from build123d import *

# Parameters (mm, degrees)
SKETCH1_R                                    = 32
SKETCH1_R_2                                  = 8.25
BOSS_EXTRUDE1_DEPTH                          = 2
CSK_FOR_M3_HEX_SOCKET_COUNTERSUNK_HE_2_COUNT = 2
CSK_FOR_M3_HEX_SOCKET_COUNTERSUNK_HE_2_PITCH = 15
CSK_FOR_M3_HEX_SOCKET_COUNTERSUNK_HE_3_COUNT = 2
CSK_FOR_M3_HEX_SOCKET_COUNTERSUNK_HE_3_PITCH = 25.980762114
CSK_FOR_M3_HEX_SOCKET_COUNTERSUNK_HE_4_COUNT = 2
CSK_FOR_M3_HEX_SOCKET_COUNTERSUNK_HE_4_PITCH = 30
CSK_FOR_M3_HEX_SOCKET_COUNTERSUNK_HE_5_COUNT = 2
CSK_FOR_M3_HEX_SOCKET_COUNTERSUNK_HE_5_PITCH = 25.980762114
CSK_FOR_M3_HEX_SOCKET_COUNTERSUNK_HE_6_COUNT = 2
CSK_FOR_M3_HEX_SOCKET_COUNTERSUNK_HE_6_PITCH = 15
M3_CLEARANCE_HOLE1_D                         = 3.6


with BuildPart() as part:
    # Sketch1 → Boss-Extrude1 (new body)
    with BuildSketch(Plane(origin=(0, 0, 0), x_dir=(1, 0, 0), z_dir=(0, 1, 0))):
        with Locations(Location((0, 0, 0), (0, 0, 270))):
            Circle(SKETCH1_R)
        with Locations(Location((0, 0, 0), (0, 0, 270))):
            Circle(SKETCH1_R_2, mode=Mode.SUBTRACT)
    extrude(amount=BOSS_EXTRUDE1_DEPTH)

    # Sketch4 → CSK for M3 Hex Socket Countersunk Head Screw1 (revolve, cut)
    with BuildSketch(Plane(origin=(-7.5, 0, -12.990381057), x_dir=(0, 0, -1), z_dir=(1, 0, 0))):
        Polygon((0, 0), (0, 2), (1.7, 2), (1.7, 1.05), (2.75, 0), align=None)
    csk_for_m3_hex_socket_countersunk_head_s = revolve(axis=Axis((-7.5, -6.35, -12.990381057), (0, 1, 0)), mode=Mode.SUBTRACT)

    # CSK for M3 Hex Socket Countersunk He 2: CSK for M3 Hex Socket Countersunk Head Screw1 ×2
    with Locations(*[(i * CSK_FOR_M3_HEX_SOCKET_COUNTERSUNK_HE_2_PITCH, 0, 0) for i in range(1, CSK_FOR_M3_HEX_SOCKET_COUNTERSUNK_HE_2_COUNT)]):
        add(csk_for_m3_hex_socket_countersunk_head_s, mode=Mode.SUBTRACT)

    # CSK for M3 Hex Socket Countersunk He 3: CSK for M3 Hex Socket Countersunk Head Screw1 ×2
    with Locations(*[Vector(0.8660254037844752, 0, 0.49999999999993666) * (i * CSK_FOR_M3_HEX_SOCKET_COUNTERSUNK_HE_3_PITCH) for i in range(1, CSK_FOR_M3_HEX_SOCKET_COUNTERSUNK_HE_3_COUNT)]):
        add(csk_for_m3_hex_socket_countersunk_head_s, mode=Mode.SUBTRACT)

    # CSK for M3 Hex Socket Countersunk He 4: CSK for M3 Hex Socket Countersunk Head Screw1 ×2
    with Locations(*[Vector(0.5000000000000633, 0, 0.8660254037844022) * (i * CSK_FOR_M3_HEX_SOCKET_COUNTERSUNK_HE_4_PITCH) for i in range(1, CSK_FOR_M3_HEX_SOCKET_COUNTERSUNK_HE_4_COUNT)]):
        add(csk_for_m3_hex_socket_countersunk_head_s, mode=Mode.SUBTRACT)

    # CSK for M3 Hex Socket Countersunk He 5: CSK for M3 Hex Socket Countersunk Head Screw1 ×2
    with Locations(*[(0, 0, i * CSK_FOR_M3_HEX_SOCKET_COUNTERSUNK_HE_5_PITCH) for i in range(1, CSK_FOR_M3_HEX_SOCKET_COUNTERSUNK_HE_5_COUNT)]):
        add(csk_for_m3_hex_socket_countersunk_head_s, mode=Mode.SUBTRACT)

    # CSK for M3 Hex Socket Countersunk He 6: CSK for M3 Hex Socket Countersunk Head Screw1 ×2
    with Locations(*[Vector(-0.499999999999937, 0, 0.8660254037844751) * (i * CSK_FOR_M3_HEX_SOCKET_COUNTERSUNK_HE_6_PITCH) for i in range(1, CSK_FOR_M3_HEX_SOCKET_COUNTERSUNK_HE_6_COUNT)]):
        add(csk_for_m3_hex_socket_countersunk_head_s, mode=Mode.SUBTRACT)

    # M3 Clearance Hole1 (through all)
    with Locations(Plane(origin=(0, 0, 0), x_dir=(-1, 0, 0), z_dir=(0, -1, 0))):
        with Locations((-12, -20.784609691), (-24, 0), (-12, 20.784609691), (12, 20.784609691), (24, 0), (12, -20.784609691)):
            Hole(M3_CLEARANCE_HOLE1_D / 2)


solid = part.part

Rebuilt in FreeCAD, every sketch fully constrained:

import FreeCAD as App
import Part
import Sketcher

V = App.Vector
Q = App.Units.Quantity

doc = App.newDocument("Part")
params = doc.addObject("Spreadsheet::Sheet", "Params")
for row, (alias, value) in enumerate([
    ("sketch1_diameter", "64 mm"),
    ("sketch1_diameter2", "16.5 mm"),
    ("pad1_length", "2 mm"),
    ("sketch2_width", "2 mm"),
    ("sketch2_height", "1.7 mm"),
    ("sketch2_width2", "0.95 mm"),
    ("groove_angle", "360 deg"),
    ("linearpattern_pitch", "15 mm"),
    ("linearpattern2_pitch", "25.980762 mm"),
    ("linearpattern3_pitch", "30 mm"),
    ("linearpattern4_pitch", "25.980762 mm"),
    ("linearpattern5_pitch", "15 mm"),
    ("sketch3_diameter", "3.6 mm"),
    ("hole_diameter", "3.6 mm"),
], start=1):
    params.set(f"A{row}", alias)
    params.set(f"B{row}", "=" + value)
    params.setAlias(f"B{row}", alias)

body = doc.addObject("PartDesign::Body", "Body")

sketch1 = body.newObject("Sketcher::SketchObject", "Sketch")
sketch1.AttachmentSupport = (doc.getObject("XZ_Plane"), [""])
sketch1.MapMode = "FlatFace"
sketch1.addGeometry(Part.Circle(V(0, 0, 0), V(0, 0, 1), 32), False)
sketch1.addGeometry(Part.Circle(V(0, 0, 0), V(0, 0, 1), 8), False)
sketch1.addConstraint(Sketcher.Constraint("Coincident", 0, 3, -1, 1))
sketch1.addConstraint(Sketcher.Constraint("Coincident", 1, 3, -1, 1))
sketch1.addConstraint(Sketcher.Constraint("Diameter", 0, 64.0))
sketch1.addConstraint(Sketcher.Constraint("Diameter", 1, 16.5))
sketch1.setExpression("Constraints[2]", "Params.sketch1_diameter")
sketch1.setExpression("Constraints[3]", "Params.sketch1_diameter2")
pad1 = body.newObject("PartDesign::Pad", "Pad")
pad1.Profile = sketch1
pad1.setExpression("Length", "Params.pad1_length")
pad1.Reversed = True

sketch2 = body.newObject("Sketcher::SketchObject", "Sketch001")
sketch2.AttachmentSupport = (doc.getObject("YZ_Plane"), [""])
sketch2.MapMode = "FlatFace"
sketch2.AttachmentOffset = App.Placement(V(0, 0, -7.5), App.Rotation())
sketch2.addGeometry(Part.LineSegment(V(2, -13, 0), V(0, -13, 0)), False)
sketch2.addGeometry(Part.LineSegment(V(0, -13, 0), V(0, -15.7, 0)), False)
sketch2.addGeometry(Part.LineSegment(V(0, -15.7, 0), V(1.1, -14.7, 0)), False)
sketch2.addGeometry(Part.LineSegment(V(1.1, -14.7, 0), V(2, -14.7, 0)), False)
sketch2.addGeometry(Part.LineSegment(V(2, -14.7, 0), V(2, -13, 0)), False)
sketch2.addGeometry(Part.LineSegment(V(0, -13, 0), V(2, -13, 0)), True)
sketch2.addConstraint(Sketcher.Constraint("Coincident", 0, 2, 1, 1))
sketch2.addConstraint(Sketcher.Constraint("Coincident", 1, 2, 2, 1))
sketch2.addConstraint(Sketcher.Constraint("Coincident", 2, 2, 3, 1))
sketch2.addConstraint(Sketcher.Constraint("Coincident", 3, 2, 4, 1))
sketch2.addConstraint(Sketcher.Constraint("Coincident", 4, 2, 0, 1))
sketch2.addConstraint(Sketcher.Constraint("Horizontal", 0))
sketch2.addConstraint(Sketcher.Constraint("Vertical", 1))
sketch2.addConstraint(Sketcher.Constraint("Horizontal", 3))
sketch2.addConstraint(Sketcher.Constraint("Vertical", 4))
sketch2.addConstraint(Sketcher.Constraint("Horizontal", 5))
sketch2.addConstraint(Sketcher.Constraint("Coincident", 5, 1, 0, 2))
sketch2.addConstraint(Sketcher.Constraint("PointOnObject", 0, 2, -2))
sketch2.addConstraint(Sketcher.Constraint("Vertical", 3, 2, 5, 2))
sketch2.addConstraint(Sketcher.Constraint("DistanceX", 0, 2, 0, 1, 2.0))
sketch2.addConstraint(Sketcher.Constraint("Angle", 2, Q("45 deg")))
sketch2.addConstraint(Sketcher.Constraint("DistanceY", 4, 1, 4, 2, 1.7))
sketch2.addConstraint(Sketcher.Constraint("DistanceX", 3, 1, 3, 2, 0.95))
sketch2.addConstraint(Sketcher.Constraint("DistanceY", 0, 2, -1, 1, 12.990381))
sketch2.setExpression("Constraints[13]", "Params.sketch2_width")
sketch2.setExpression("Constraints[15]", "Params.sketch2_height")
sketch2.setExpression("Constraints[16]", "Params.sketch2_width2")
groove = body.newObject("PartDesign::Groove", "Groove")
groove.Profile = sketch2
groove.ReferenceAxis = (sketch2, ["Axis0"])
groove.setExpression("Angle", "Params.groove_angle")
doc.recompute()

linearpattern = body.newObject("PartDesign::LinearPattern", "LinearPattern")
linearpattern.Originals = [groove]
linearpattern.Direction = (doc.getObject("X_Axis"), [""])
linearpattern.Mode = "offset"
linearpattern.setExpression("Offset", "Params.linearpattern_pitch")
linearpattern.Occurrences = 2
body.Tip = linearpattern
doc.recompute()

datumline = body.newObject("PartDesign::Line", "DatumLine")
datumline.Placement = App.Placement(V(0, 0, 0), App.Rotation(V(0, 0, 1), V(0.866025404, 0, 0.5)))
linearpattern2 = body.newObject("PartDesign::LinearPattern", "LinearPattern001")
linearpattern2.Originals = [groove]
linearpattern2.Direction = (datumline, [""])
linearpattern2.Mode = "offset"
linearpattern2.setExpression("Offset", "Params.linearpattern2_pitch")
linearpattern2.Occurrences = 2
body.Tip = linearpattern2
doc.recompute()

datumline2 = body.newObject("PartDesign::Line", "DatumLine001")
datumline2.Placement = App.Placement(V(0, 0, 0), App.Rotation(V(0, 0, 1), V(0.5, 0, 0.866025404)))
linearpattern3 = body.newObject("PartDesign::LinearPattern", "LinearPattern002")
linearpattern3.Originals = [groove]
linearpattern3.Direction = (datumline2, [""])
linearpattern3.Mode = "offset"
linearpattern3.setExpression("Offset", "Params.linearpattern3_pitch")
linearpattern3.Occurrences = 2
body.Tip = linearpattern3
doc.recompute()

linearpattern4 = body.newObject("PartDesign::LinearPattern", "LinearPattern003")
linearpattern4.Originals = [groove]
linearpattern4.Direction = (doc.getObject("Z_Axis"), [""])
linearpattern4.Mode = "offset"
linearpattern4.setExpression("Offset", "Params.linearpattern4_pitch")
linearpattern4.Occurrences = 2
body.Tip = linearpattern4
doc.recompute()

datumline3 = body.newObject("PartDesign::Line", "DatumLine002")
datumline3.Placement = App.Placement(V(0, 0, 0), App.Rotation(V(0, 0, 1), V(-0.5, 0, 0.866025404)))
linearpattern5 = body.newObject("PartDesign::LinearPattern", "LinearPattern004")
linearpattern5.Originals = [groove]
linearpattern5.Direction = (datumline3, [""])
linearpattern5.Mode = "offset"
linearpattern5.setExpression("Offset", "Params.linearpattern5_pitch")
linearpattern5.Occurrences = 2
body.Tip = linearpattern5

sketch3 = body.newObject("Sketcher::SketchObject", "Sketch002")
sketch3.AttachmentSupport = (doc.getObject("XZ_Plane"), [""])
sketch3.MapMode = "FlatFace"
sketch3.addGeometry(Part.Circle(V(12, 20.8, 0), V(0, 0, 1), 1.8), False)
sketch3.addGeometry(Part.Circle(V(24, 0, 0), V(0, 0, 1), 1.8), False)
sketch3.addGeometry(Part.Circle(V(12, -20.8, 0), V(0, 0, 1), 1.8), False)
sketch3.addGeometry(Part.Circle(V(-12, -20.8, 0), V(0, 0, 1), 1.8), False)
sketch3.addGeometry(Part.Circle(V(-24, 0, 0), V(0, 0, 1), 1.8), False)
sketch3.addGeometry(Part.Circle(V(-12, 20.8, 0), V(0, 0, 1), 1.8), False)
sketch3.addConstraint(Sketcher.Constraint("Equal", 0, 1))
sketch3.addConstraint(Sketcher.Constraint("Equal", 1, 2))
sketch3.addConstraint(Sketcher.Constraint("Equal", 2, 3))
sketch3.addConstraint(Sketcher.Constraint("Equal", 3, 4))
sketch3.addConstraint(Sketcher.Constraint("Equal", 4, 5))
sketch3.addConstraint(Sketcher.Constraint("Symmetric", 0, 3, 3, 3, -1, 1))
sketch3.addConstraint(Sketcher.Constraint("Symmetric", 1, 3, 4, 3, -1, 1))
sketch3.addConstraint(Sketcher.Constraint("Symmetric", 2, 3, 5, 3, -1, 1))
sketch3.addConstraint(Sketcher.Constraint("Symmetric", 2, 3, 3, 3, -2))
sketch3.addConstraint(Sketcher.Constraint("PointOnObject", 1, 3, -1))
sketch3.addConstraint(Sketcher.Constraint("Diameter", 0, 3.6))
sketch3.addConstraint(Sketcher.Constraint("DistanceX", -1, 1, 0, 3, 12.0))
sketch3.addConstraint(Sketcher.Constraint("DistanceX", -1, 1, 1, 3, 24.0))
sketch3.addConstraint(Sketcher.Constraint("DistanceY", -1, 1, 0, 3, 20.78461))
sketch3.setExpression("Constraints[10]", "Params.sketch3_diameter")
doc.recompute()
hole = body.newObject("PartDesign::Hole", "Hole")
hole.Profile = sketch3
hole.ThreadType = "None"
hole.setExpression("Diameter", "Params.hole_diameter")
hole.DepthType = "ThroughAll"

doc.recompute()
